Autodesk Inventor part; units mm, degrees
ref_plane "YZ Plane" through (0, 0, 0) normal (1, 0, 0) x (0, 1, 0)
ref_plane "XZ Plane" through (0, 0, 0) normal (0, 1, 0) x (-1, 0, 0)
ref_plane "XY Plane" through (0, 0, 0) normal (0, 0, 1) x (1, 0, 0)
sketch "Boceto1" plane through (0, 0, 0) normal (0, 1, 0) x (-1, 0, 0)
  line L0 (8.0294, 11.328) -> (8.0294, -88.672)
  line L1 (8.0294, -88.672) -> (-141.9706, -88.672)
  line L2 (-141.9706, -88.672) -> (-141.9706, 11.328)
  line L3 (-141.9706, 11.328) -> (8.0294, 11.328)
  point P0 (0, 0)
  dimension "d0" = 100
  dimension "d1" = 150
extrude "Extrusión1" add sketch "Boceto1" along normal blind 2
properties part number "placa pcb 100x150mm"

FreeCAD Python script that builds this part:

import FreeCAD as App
import Part
import Sketcher
Q = App.Units.Quantity


def add_polygon(sketch, points):
    """Adds a closed chain of lines whose ends are joined by coincident constraints."""
    first, n = sketch.GeometryCount, len(points)
    for a, b in zip(points, points[1:] + points[:1]):
        sketch.addGeometry(Part.LineSegment(App.Vector(*a, 0), App.Vector(*b, 0)), False)
    for i in range(n):
        sketch.addConstraint(Sketcher.Constraint("Coincident", first + i, 2, first + (i + 1) % n, 1))

doc = App.newDocument("Part")
body = doc.addObject("PartDesign::Body", "Body")

# Sketch on XZ plane
sketch1 = doc.addObject("Sketcher::SketchObject", "Sketch")
body.addObject(sketch1)
sketch1.AttachmentSupport = (doc.XZ_Plane, [""])
sketch1.MapMode = "FlatFace"
add_polygon(sketch1, [(-8, -89), (-8, 11), (142, 11), (142, -89)])  # lines 0-3
sketch1.addConstraint([
    Sketcher.Constraint("Vertical", 0),
    Sketcher.Constraint("Horizontal", 1),
    Sketcher.Constraint("Vertical", 2),
    Sketcher.Constraint("Horizontal", 3),
    Sketcher.Constraint("DistanceX", 1, 1, 1, 2, Q("150 mm")),
    Sketcher.Constraint("DistanceY", 0, 1, 0, 2, Q("100 mm")),
    Sketcher.Constraint("DistanceY", -1, 1, 0, 2, Q("11.328 mm")),
    Sketcher.Constraint("DistanceX", 0, 2, -1, 1, Q("8.0294 mm")),
])
pad1 = doc.addObject("PartDesign::Pad", "Pad")
body.addObject(pad1)
pad1.Profile = sketch1
pad1.Length = 2
pad1.Reversed = True

doc.recompute()
